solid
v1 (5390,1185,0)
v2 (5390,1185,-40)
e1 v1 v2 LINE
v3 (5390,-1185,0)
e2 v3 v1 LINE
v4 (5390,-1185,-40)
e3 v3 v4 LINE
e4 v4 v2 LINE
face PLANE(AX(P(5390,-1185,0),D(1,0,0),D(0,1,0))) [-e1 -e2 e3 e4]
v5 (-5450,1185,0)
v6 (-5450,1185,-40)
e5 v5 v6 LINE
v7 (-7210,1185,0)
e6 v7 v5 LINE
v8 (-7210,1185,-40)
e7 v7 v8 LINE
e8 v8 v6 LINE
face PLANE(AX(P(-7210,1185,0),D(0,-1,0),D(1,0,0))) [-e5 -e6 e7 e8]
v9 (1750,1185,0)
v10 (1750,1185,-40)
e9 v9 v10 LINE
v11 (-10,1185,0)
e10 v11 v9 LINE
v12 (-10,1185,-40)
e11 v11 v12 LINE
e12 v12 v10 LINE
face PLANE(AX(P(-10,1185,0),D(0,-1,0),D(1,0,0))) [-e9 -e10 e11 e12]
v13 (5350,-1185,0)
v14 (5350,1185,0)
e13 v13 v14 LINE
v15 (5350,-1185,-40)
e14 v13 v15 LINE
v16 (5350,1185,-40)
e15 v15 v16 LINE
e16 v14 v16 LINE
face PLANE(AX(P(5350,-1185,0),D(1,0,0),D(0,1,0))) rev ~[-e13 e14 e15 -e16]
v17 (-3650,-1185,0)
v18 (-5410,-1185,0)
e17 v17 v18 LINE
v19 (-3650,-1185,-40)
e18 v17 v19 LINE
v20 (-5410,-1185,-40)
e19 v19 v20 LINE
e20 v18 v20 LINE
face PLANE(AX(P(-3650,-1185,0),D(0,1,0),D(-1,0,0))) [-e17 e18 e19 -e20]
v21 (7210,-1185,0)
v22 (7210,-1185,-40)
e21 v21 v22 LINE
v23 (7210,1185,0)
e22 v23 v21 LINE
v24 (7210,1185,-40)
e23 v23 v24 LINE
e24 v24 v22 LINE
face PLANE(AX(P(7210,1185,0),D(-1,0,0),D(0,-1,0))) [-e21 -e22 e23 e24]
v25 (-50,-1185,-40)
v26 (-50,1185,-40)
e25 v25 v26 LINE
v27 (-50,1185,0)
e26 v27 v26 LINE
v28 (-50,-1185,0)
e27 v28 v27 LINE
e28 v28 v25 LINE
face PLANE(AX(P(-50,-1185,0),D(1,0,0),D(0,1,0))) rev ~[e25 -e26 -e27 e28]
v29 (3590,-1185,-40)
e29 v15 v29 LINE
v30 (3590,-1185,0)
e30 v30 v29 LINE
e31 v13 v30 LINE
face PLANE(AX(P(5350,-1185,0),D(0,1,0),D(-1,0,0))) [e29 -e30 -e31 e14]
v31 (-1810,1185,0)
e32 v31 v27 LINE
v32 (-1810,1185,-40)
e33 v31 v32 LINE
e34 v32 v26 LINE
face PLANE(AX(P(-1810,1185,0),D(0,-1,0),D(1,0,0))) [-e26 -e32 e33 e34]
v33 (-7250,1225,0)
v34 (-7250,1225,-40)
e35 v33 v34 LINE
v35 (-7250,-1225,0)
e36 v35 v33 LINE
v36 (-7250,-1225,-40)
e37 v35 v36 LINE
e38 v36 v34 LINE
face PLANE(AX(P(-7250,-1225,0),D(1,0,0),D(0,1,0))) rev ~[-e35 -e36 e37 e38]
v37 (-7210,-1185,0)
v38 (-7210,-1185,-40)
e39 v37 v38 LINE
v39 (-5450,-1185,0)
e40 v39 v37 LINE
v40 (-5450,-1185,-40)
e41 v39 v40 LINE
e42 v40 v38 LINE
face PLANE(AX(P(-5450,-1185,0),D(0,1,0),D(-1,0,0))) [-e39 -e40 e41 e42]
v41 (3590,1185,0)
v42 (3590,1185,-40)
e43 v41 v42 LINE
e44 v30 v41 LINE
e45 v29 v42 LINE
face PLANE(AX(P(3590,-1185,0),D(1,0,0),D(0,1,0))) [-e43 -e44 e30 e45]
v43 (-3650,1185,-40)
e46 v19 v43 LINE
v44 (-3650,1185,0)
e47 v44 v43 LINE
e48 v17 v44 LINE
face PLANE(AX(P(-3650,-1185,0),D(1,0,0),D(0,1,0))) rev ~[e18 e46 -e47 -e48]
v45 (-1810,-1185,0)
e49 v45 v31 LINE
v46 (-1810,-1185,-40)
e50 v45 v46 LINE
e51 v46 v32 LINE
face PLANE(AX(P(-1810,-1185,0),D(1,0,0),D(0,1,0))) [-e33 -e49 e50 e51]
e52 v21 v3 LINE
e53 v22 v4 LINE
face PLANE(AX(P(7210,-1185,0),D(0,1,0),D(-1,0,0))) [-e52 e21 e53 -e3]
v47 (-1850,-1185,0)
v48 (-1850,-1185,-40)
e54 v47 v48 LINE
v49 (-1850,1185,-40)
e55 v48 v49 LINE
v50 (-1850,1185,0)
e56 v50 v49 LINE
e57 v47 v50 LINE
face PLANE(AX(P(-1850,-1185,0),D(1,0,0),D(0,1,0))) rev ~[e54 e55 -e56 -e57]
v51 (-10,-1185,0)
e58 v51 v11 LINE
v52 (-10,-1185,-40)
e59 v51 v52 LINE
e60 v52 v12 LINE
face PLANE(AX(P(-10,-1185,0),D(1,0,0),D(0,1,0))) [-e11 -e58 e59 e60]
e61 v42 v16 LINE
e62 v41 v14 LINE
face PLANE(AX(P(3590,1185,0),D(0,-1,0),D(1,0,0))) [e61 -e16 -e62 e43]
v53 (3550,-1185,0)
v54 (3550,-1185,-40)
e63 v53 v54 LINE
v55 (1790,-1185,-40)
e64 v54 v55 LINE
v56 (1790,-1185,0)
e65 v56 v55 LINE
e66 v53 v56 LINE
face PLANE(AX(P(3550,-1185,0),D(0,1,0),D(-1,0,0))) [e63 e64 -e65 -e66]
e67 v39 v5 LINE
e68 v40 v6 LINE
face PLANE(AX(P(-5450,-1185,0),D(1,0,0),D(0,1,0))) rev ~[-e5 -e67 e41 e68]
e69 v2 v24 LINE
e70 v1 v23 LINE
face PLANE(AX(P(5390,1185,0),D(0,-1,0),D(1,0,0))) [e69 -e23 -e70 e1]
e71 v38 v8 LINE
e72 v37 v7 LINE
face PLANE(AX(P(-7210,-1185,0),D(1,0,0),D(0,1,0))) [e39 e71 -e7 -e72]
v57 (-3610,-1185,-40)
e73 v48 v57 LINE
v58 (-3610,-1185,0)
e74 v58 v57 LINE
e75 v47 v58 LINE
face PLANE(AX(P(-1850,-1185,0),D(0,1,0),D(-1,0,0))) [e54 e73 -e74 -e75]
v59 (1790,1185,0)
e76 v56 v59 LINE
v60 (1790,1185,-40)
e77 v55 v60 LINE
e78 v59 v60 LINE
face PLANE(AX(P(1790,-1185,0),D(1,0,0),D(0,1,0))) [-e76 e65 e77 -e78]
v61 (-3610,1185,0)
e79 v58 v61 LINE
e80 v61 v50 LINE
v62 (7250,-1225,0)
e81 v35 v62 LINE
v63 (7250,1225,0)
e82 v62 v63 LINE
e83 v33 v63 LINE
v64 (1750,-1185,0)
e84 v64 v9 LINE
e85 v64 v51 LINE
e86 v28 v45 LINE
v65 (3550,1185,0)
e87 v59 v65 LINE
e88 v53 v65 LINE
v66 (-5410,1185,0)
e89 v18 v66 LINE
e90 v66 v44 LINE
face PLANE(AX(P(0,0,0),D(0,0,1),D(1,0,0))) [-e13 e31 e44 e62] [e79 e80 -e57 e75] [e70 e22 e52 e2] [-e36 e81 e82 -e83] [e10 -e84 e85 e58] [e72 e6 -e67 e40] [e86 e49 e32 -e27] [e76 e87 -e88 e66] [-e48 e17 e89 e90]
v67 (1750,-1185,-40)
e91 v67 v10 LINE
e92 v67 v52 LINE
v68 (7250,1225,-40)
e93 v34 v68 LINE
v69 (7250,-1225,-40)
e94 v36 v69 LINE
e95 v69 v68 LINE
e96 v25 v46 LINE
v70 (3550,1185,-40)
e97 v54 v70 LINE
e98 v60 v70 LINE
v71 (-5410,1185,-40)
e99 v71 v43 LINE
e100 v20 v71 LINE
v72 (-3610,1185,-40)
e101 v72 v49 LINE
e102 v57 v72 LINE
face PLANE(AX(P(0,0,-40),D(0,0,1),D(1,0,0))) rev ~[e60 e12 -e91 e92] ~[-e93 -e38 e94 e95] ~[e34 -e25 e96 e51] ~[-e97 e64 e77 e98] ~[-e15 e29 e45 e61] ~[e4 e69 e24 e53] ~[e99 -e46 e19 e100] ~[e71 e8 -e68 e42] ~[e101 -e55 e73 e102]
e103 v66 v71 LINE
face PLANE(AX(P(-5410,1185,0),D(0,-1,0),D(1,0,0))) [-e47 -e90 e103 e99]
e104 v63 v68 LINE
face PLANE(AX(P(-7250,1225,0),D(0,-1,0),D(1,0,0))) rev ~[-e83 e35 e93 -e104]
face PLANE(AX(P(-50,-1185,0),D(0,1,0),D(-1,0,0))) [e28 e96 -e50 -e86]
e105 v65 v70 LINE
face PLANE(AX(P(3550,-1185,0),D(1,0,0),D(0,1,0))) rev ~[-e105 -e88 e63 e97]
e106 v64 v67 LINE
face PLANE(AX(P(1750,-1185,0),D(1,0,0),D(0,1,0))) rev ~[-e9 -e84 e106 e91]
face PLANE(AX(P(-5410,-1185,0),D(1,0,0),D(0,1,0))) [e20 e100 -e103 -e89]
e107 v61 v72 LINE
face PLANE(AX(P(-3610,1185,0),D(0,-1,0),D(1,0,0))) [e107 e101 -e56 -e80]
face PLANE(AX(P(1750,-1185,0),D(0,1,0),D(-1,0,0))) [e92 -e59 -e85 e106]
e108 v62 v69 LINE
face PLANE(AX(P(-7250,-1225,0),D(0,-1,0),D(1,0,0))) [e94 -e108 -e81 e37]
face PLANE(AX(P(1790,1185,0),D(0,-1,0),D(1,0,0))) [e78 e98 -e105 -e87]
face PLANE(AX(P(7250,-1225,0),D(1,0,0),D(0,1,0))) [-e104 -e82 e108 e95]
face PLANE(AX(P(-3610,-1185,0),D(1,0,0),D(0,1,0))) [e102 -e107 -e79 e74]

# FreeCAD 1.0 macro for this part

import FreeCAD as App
import Part
import Sketcher

doc = App.newDocument("Part")
body = doc.addObject("PartDesign::Body", "Body")

# Sketch on XY plane
sketch1 = doc.addObject("Sketcher::SketchObject", "Sketch")
body.addObject(sketch1)
sketch1.AttachmentSupport = (doc.XY_Plane, [""])
sketch1.MapMode = "FlatFace"
sketch1.addGeometry([
    Part.LineSegment(App.Vector(-7250, 1225, 0), App.Vector(-7250, -1225, 0)),  # 0
    Part.LineSegment(App.Vector(-7250, -1225, 0), App.Vector(7250, -1225, 0)),  # 1
    Part.LineSegment(App.Vector(7250, -1225, 0), App.Vector(7250, 1225, 0)),  # 2
    Part.LineSegment(App.Vector(7250, 1225, 0), App.Vector(-7250, 1225, 0)),  # 3
    Part.LineSegment(App.Vector(-7210, 1185, 0), App.Vector(-5450, 1185, 0)),  # 4
    Part.LineSegment(App.Vector(-5450, 1185, 0), App.Vector(-5450, -1185, 0)),  # 5
    Part.LineSegment(App.Vector(-5450, -1185, 0), App.Vector(-7210, -1185, 0)),  # 6
    Part.LineSegment(App.Vector(-7210, -1185, 0), App.Vector(-7210, 1185, 0)),  # 7
    Part.LineSegment(App.Vector(-5410, 1185, 0), App.Vector(-3650, 1185, 0)),  # 8
    Part.LineSegment(App.Vector(-3650, 1185, 0), App.Vector(-3650, -1185, 0)),  # 9
    Part.LineSegment(App.Vector(-3650, -1185, 0), App.Vector(-5410, -1185, 0)),  # 10
    Part.LineSegment(App.Vector(-5410, -1185, 0), App.Vector(-5410, 1185, 0)),  # 11
    Part.LineSegment(App.Vector(-3610, 1185, 0), App.Vector(-1850, 1185, 0)),  # 12
    Part.LineSegment(App.Vector(-1850, 1185, 0), App.Vector(-1850, -1185, 0)),  # 13
    Part.LineSegment(App.Vector(-1850, -1185, 0), App.Vector(-3610, -1185, 0)),  # 14
    Part.LineSegment(App.Vector(-3610, -1185, 0), App.Vector(-3610, 1185, 0)),  # 15
    Part.LineSegment(App.Vector(-1810, 1185, 0), App.Vector(-50, 1185, 0)),  # 16
    Part.LineSegment(App.Vector(-50, 1185, 0), App.Vector(-50, -1185, 0)),  # 17
    Part.LineSegment(App.Vector(-50, -1185, 0), App.Vector(-1810, -1185, 0)),  # 18
    Part.LineSegment(App.Vector(-1810, -1185, 0), App.Vector(-1810, 1185, 0)),  # 19
    Part.LineSegment(App.Vector(-10, 1185, 0), App.Vector(1750, 1185, 0)),  # 20
    Part.LineSegment(App.Vector(1750, 1185, 0), App.Vector(1750, -1185, 0)),  # 21
    Part.LineSegment(App.Vector(1750, -1185, 0), App.Vector(-10, -1185, 0)),  # 22
    Part.LineSegment(App.Vector(-10, -1185, 0), App.Vector(-10, 1185, 0)),  # 23
    Part.LineSegment(App.Vector(1790, 1185, 0), App.Vector(3550, 1185, 0)),  # 24
    Part.LineSegment(App.Vector(3550, 1185, 0), App.Vector(3550, -1185, 0)),  # 25
    Part.LineSegment(App.Vector(3550, -1185, 0), App.Vector(1790, -1185, 0)),  # 26
    Part.LineSegment(App.Vector(1790, -1185, 0), App.Vector(1790, 1185, 0)),  # 27
    Part.LineSegment(App.Vector(3590, 1185, 0), App.Vector(5350, 1185, 0)),  # 28
    Part.LineSegment(App.Vector(5350, 1185, 0), App.Vector(5350, -1185, 0)),  # 29
    Part.LineSegment(App.Vector(5350, -1185, 0), App.Vector(3590, -1185, 0)),  # 30
    Part.LineSegment(App.Vector(3590, -1185, 0), App.Vector(3590, 1185, 0)),  # 31
    Part.LineSegment(App.Vector(5390, 1185, 0), App.Vector(7210, 1185, 0)),  # 32
    Part.LineSegment(App.Vector(7210, 1185, 0), App.Vector(7210, -1185, 0)),  # 33
    Part.LineSegment(App.Vector(7210, -1185, 0), App.Vector(5390, -1185, 0)),  # 34
    Part.LineSegment(App.Vector(5390, -1185, 0), App.Vector(5390, 1185, 0)),  # 35
], False)
sketch1.addConstraint([
    Sketcher.Constraint("Coincident", 0, 2, 1, 1),
    Sketcher.Constraint("Coincident", 1, 2, 2, 1),
    Sketcher.Constraint("Coincident", 2, 2, 3, 1),
    Sketcher.Constraint("Coincident", 3, 2, 0, 1),
    Sketcher.Constraint("Coincident", 4, 2, 5, 1),
    Sketcher.Constraint("Coincident", 5, 2, 6, 1),
    Sketcher.Constraint("Coincident", 6, 2, 7, 1),
    Sketcher.Constraint("Coincident", 7, 2, 4, 1),
    Sketcher.Constraint("Coincident", 8, 2, 9, 1),
    Sketcher.Constraint("Coincident", 9, 2, 10, 1),
    Sketcher.Constraint("Coincident", 10, 2, 11, 1),
    Sketcher.Constraint("Coincident", 11, 2, 8, 1),
    Sketcher.Constraint("Coincident", 12, 2, 13, 1),
    Sketcher.Constraint("Coincident", 13, 2, 14, 1),
    Sketcher.Constraint("Coincident", 14, 2, 15, 1),
    Sketcher.Constraint("Coincident", 15, 2, 12, 1),
    Sketcher.Constraint("Coincident", 16, 2, 17, 1),
    Sketcher.Constraint("Coincident", 17, 2, 18, 1),
    Sketcher.Constraint("Coincident", 18, 2, 19, 1),
    Sketcher.Constraint("Coincident", 19, 2, 16, 1),
    Sketcher.Constraint("Coincident", 20, 2, 21, 1),
    Sketcher.Constraint("Coincident", 21, 2, 22, 1),
    Sketcher.Constraint("Coincident", 22, 2, 23, 1),
    Sketcher.Constraint("Coincident", 23, 2, 20, 1),
    Sketcher.Constraint("Coincident", 24, 2, 25, 1),
    Sketcher.Constraint("Coincident", 25, 2, 26, 1),
    Sketcher.Constraint("Coincident", 26, 2, 27, 1),
    Sketcher.Constraint("Coincident", 27, 2, 24, 1),
    Sketcher.Constraint("Coincident", 28, 2, 29, 1),
    Sketcher.Constraint("Coincident", 29, 2, 30, 1),
    Sketcher.Constraint("Coincident", 30, 2, 31, 1),
    Sketcher.Constraint("Coincident", 31, 2, 28, 1),
    Sketcher.Constraint("Coincident", 32, 2, 33, 1),
    Sketcher.Constraint("Coincident", 33, 2, 34, 1),
    Sketcher.Constraint("Coincident", 34, 2, 35, 1),
    Sketcher.Constraint("Coincident", 35, 2, 32, 1),
    Sketcher.Constraint("Vertical", 0),
    Sketcher.Constraint("Horizontal", 1),
    Sketcher.Constraint("Vertical", 2),
    Sketcher.Constraint("Horizontal", 3),
    Sketcher.Constraint("Horizontal", 4),
    Sketcher.Constraint("Vertical", 5),
    Sketcher.Constraint("Horizontal", 6),
    Sketcher.Constraint("Vertical", 7),
    Sketcher.Constraint("Horizontal", 8),
    Sketcher.Constraint("Vertical", 9),
    Sketcher.Constraint("Horizontal", 10),
    Sketcher.Constraint("Vertical", 11),
    Sketcher.Constraint("Horizontal", 12),
    Sketcher.Constraint("Vertical", 13),
    Sketcher.Constraint("Horizontal", 14),
    Sketcher.Constraint("Vertical", 15),
    Sketcher.Constraint("Horizontal", 16),
    Sketcher.Constraint("Vertical", 17),
    Sketcher.Constraint("Horizontal", 18),
    Sketcher.Constraint("Vertical", 19),
    Sketcher.Constraint("Horizontal", 20),
    Sketcher.Constraint("Vertical", 21),
    Sketcher.Constraint("Horizontal", 22),
    Sketcher.Constraint("Vertical", 23),
    Sketcher.Constraint("Horizontal", 24),
    Sketcher.Constraint("Vertical", 25),
    Sketcher.Constraint("Horizontal", 26),
    Sketcher.Constraint("Vertical", 27),
    Sketcher.Constraint("Horizontal", 28),
    Sketcher.Constraint("Vertical", 29),
    Sketcher.Constraint("Horizontal", 30),
    Sketcher.Constraint("Vertical", 31),
    Sketcher.Constraint("Horizontal", 32),
    Sketcher.Constraint("Vertical", 33),
    Sketcher.Constraint("Horizontal", 34),
    Sketcher.Constraint("Vertical", 35),
    Sketcher.Constraint("Symmetric", 0, 2, 2, 2, -1, 1),
    Sketcher.Constraint("Symmetric", 6, 2, 32, 2, -1, 1),
    Sketcher.Constraint("Horizontal", 7, 2, 8, 2),
    Sketcher.Constraint("Horizontal", 6, 2, 9, 2),
    Sketcher.Constraint("Horizontal", 11, 2, 12, 2),
    Sketcher.Constraint("Horizontal", 10, 2, 13, 2),
    Sketcher.Constraint("Horizontal", 15, 2, 16, 2),
    Sketcher.Constraint("Horizontal", 14, 2, 17, 2),
    Sketcher.Constraint("Horizontal", 19, 2, 20, 2),
    Sketcher.Constraint("Horizontal", 18, 2, 21, 2),
    Sketcher.Constraint("Horizontal", 23, 2, 24, 2),
    Sketcher.Constraint("Horizontal", 22, 2, 25, 2),
    Sketcher.Constraint("Horizontal", 27, 2, 28, 2),
    Sketcher.Constraint("Horizontal", 26, 2, 29, 2),
    Sketcher.Constraint("Horizontal", 31, 2, 32, 2),
    Sketcher.Constraint("Horizontal", 30, 2, 33, 2),
    Sketcher.Constraint("Equal", 6, 8),
    Sketcher.Constraint("Equal", 10, 12),
    Sketcher.Constraint("Equal", 14, 16),
    Sketcher.Constraint("Equal", 18, 20),
    Sketcher.Constraint("Equal", 22, 24),
    Sketcher.Constraint("Equal", 26, 28),
    Sketcher.Constraint("DistanceX", 1, 1, 1, 2, 14500.0),
    Sketcher.Constraint("DistanceX", 4, 1, 4, 2, 1760.0),
    Sketcher.Constraint("DistanceX", 32, 1, 32, 2, 1820.0),
    Sketcher.Constraint("DistanceY", 0, 2, 0, 1, 2450.0),
    Sketcher.Constraint("DistanceY", 5, 2, 5, 1, 2370.0),
    Sketcher.Constraint("DistanceX", 4, 2, -1, 1, 5450.0),
    Sketcher.Constraint("DistanceX", 8, 2, -1, 1, 3650.0),
    Sketcher.Constraint("DistanceX", 12, 2, -1, 1, 1850.0),
    Sketcher.Constraint("DistanceX", 16, 2, -1, 1, 50.0),
    Sketcher.Constraint("DistanceX", -1, 1, 20, 2, 1750.0),
    Sketcher.Constraint("DistanceX", -1, 1, 24, 2, 3550.0),
    Sketcher.Constraint("DistanceX", -1, 1, 28, 2, 5350.0),
])
pad1 = doc.addObject("PartDesign::Pad", "Pad")
body.addObject(pad1)
pad1.Profile = sketch1
pad1.Length = 40
pad1.Reversed = True

doc.recompute()
